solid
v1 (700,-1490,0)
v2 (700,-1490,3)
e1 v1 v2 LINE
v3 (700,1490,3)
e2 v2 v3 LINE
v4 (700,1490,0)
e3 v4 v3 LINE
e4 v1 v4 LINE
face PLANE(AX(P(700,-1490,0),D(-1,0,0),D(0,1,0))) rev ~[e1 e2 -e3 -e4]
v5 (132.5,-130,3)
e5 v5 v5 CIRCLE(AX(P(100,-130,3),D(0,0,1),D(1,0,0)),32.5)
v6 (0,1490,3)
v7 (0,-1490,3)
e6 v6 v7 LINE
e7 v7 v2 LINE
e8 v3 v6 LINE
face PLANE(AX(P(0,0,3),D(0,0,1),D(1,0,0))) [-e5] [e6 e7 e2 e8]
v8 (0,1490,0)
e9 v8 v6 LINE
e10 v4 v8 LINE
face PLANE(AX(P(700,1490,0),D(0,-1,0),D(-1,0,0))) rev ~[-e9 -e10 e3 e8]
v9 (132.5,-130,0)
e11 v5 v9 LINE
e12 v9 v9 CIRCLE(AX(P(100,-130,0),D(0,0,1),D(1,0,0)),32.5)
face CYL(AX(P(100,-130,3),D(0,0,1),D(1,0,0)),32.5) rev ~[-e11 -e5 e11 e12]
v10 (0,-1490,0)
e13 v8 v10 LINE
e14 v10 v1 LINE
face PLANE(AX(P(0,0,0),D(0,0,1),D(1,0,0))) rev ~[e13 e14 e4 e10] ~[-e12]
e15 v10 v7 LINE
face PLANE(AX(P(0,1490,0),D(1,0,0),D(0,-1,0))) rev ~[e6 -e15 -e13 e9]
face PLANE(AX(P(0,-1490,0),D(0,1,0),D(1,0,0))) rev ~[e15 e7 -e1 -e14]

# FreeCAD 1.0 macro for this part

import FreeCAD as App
import Part
import Sketcher
Q = App.Units.Quantity


def add_polygon(sketch, points):
    """Adds a closed chain of lines whose ends are joined by coincident constraints."""
    first, n = sketch.GeometryCount, len(points)
    for a, b in zip(points, points[1:] + points[:1]):
        sketch.addGeometry(Part.LineSegment(App.Vector(*a, 0), App.Vector(*b, 0)), False)
    for i in range(n):
        sketch.addConstraint(Sketcher.Constraint("Coincident", first + i, 2, first + (i + 1) % n, 1))

doc = App.newDocument("Part")
body = doc.addObject("PartDesign::Body", "Body")

# Sketch on XY plane
sketch1 = doc.addObject("Sketcher::SketchObject", "Sketch")
body.addObject(sketch1)
sketch1.AttachmentSupport = (doc.XY_Plane, [""])
sketch1.MapMode = "FlatFace"
add_polygon(sketch1, [(0, 1490), (0, -1490), (700, -1490), (700, 1490)])  # lines 0-3
sketch1.addConstraint(Sketcher.Constraint("Vertical", 0))
sketch1.addConstraint(Sketcher.Constraint("Horizontal", 1))
sketch1.addConstraint(Sketcher.Constraint("Vertical", 2))
sketch1.addConstraint(Sketcher.Constraint("Horizontal", 3))
sketch1.addConstraint(Sketcher.Constraint("Symmetric", 0, 2, 3, 2, -1, 1))
sketch1.addConstraint(Sketcher.Constraint("DistanceX", 1, 1, 1, 2, Q("700 mm")))
sketch1.addConstraint(Sketcher.Constraint("DistanceY", 0, 2, 0, 1, Q("2980 mm")))
pad1 = doc.addObject("PartDesign::Pad", "Pad")
body.addObject(pad1)
pad1.Profile = sketch1
pad1.Length = 3

# Sketch on XY plane
sketch2 = doc.addObject("Sketcher::SketchObject", "Sketch001")
body.addObject(sketch2)
sketch2.AttachmentSupport = (doc.XY_Plane, [""])
sketch2.MapMode = "FlatFace"
sketch2.AttachmentOffset = App.Placement(App.Vector(0, 0, 3), App.Rotation())
sketch2.addGeometry(Part.Circle(App.Vector(100, -130, 0), App.Vector(0, 0, 1), 32.5), False)
sketch2.addConstraint(Sketcher.Constraint("Diameter", 0, Q("65 mm")))
sketch2.addConstraint(Sketcher.Constraint("DistanceX", -1, 1, 0, 3, Q("100 mm")))
sketch2.addConstraint(Sketcher.Constraint("DistanceY", 0, 3, -1, 1, Q("130 mm")))
pocket1 = doc.addObject("PartDesign::Pocket", "Pocket")
body.addObject(pocket1)
pocket1.Profile = sketch2
pocket1.Length = 3

doc.recompute()
